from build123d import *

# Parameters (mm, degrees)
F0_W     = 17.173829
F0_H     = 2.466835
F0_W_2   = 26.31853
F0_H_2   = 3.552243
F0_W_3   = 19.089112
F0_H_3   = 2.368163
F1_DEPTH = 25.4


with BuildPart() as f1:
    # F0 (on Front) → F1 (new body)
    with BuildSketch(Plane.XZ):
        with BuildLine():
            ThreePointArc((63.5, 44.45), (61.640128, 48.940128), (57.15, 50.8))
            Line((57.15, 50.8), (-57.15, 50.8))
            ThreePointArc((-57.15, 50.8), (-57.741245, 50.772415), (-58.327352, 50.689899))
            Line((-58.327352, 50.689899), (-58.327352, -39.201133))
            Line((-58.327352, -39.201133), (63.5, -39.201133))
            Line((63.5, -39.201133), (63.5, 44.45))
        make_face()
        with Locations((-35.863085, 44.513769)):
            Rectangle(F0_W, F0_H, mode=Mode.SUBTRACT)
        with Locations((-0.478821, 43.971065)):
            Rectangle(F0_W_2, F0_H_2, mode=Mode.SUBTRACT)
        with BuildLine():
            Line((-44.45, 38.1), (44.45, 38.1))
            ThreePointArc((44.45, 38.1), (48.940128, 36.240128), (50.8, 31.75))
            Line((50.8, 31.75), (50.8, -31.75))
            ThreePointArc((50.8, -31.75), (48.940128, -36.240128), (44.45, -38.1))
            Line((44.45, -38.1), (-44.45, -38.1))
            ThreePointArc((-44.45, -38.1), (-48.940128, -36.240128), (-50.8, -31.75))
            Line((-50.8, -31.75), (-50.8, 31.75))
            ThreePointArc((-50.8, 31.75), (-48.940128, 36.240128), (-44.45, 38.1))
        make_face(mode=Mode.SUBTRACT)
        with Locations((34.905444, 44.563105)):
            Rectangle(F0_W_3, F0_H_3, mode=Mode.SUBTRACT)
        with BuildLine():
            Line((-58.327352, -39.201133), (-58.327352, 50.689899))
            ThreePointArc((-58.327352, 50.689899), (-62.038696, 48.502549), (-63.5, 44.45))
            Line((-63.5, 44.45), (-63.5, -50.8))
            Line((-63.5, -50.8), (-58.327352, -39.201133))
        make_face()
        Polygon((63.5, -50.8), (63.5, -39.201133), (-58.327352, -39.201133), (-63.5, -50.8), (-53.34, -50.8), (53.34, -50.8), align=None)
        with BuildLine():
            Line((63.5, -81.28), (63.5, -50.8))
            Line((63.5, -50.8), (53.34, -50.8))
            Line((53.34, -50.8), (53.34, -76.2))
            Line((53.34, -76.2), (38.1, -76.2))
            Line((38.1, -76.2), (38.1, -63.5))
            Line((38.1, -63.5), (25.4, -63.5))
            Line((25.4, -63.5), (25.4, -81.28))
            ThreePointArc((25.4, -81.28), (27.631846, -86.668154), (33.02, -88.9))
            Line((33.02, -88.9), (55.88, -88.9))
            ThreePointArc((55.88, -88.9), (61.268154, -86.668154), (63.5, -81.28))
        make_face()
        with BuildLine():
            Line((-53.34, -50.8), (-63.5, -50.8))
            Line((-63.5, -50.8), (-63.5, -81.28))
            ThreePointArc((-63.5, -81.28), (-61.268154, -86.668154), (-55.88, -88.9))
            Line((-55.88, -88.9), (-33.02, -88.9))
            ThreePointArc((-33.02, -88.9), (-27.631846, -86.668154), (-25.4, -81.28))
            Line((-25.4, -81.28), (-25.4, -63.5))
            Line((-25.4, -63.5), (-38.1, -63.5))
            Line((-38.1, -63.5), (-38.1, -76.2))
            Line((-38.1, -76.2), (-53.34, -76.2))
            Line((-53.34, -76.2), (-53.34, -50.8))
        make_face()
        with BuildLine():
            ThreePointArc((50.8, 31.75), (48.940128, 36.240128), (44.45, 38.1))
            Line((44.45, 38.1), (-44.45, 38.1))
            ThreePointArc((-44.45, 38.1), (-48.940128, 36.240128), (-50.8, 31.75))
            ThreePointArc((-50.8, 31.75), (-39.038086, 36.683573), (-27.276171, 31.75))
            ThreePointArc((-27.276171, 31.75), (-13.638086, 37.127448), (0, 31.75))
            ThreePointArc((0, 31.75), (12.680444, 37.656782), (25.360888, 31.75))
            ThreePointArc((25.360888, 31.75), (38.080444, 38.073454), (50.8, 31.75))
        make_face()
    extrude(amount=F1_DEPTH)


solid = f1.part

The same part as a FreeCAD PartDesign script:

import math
import FreeCAD as App
import Part
import Sketcher

V = App.Vector
Q = App.Units.Quantity


def add_polygon(sketch, points):
    """Adds a closed chain of lines whose ends are joined by coincident constraints."""
    first, n = sketch.GeometryCount, len(points)
    for a, b in zip(points, points[1:] + points[:1]):
        sketch.addGeometry(Part.LineSegment(App.Vector(*a, 0), App.Vector(*b, 0)), False)
    for i in range(n):
        sketch.addConstraint(Sketcher.Constraint("Coincident", first + i, 2, first + (i + 1) % n, 1))

doc = App.newDocument("Part")
body = doc.addObject("PartDesign::Body", "Body")

# Sketch on XZ plane
sketch1 = body.newObject("Sketcher::SketchObject", "Sketch")
sketch1.AttachmentSupport = (doc.getObject("XZ_Plane"), [""])
sketch1.MapMode = "FlatFace"
sketch1.addGeometry(Part.ArcOfCircle(Part.Circle(V(57.15, 44.45, 0), V(0, 0, 1), 6.35), math.radians(0.000002), math.radians(89.999998)), False)  # 0
sketch1.addGeometry(Part.LineSegment(V(57.15, 50.8, 0), V(-57.15, 50.8, 0)), False)  # 1
sketch1.addGeometry(Part.ArcOfCircle(Part.Circle(V(-57.150005, 44.450062, 0), V(0, 0, 1), 6.349938), math.radians(89.999958), math.radians(100.685087)), False)  # 2
sketch1.addGeometry(Part.ArcOfCircle(Part.Circle(V(-57.150001, 44.450001, 0), V(0, 0, 1), 6.349999), math.radians(100.685016), math.radians(180.000005)), False)  # 3
sketch1.addGeometry(Part.LineSegment(V(-63.5, 44.45, 0), V(-63.5, -81.28, 0)), False)  # 4
sketch1.addGeometry(Part.ArcOfCircle(Part.Circle(V(-55.880001, -81.280001, 0), V(0, 0, 1), 7.619999), math.radians(179.999992), math.radians(270.000008)), False)  # 5
sketch1.addGeometry(Part.LineSegment(V(-55.88, -88.9, 0), V(-33.02, -88.9, 0)), False)  # 6
sketch1.addGeometry(Part.ArcOfCircle(Part.Circle(V(-33.019999, -81.280001, 0), V(0, 0, 1), 7.619999), math.radians(-90.000008), math.radians(0.000008)), False)  # 7
sketch1.addGeometry(Part.LineSegment(V(-25.4, -81.28, 0), V(-25.4, -63.5, 0)), False)  # 8
sketch1.addGeometry(Part.LineSegment(V(-25.4, -63.5, 0), V(-38.1, -63.5, 0)), False)  # 9
sketch1.addGeometry(Part.LineSegment(V(-38.1, -63.5, 0), V(-38.1, -76.2, 0)), False)  # 10
sketch1.addGeometry(Part.LineSegment(V(-38.1, -76.2, 0), V(-53.34, -76.2, 0)), False)  # 11
sketch1.addGeometry(Part.LineSegment(V(-53.34, -76.2, 0), V(-53.34, -50.8, 0)), False)  # 12
sketch1.addGeometry(Part.LineSegment(V(-53.34, -50.8, 0), V(53.34, -50.8, 0)), False)  # 13
sketch1.addGeometry(Part.LineSegment(V(53.34, -50.8, 0), V(53.34, -76.2, 0)), False)  # 14
sketch1.addGeometry(Part.LineSegment(V(53.34, -76.2, 0), V(38.1, -76.2, 0)), False)  # 15
sketch1.addGeometry(Part.LineSegment(V(38.1, -76.2, 0), V(38.1, -63.5, 0)), False)  # 16
sketch1.addGeometry(Part.LineSegment(V(38.1, -63.5, 0), V(25.4, -63.5, 0)), False)  # 17
sketch1.addGeometry(Part.LineSegment(V(25.4, -63.5, 0), V(25.4, -81.28, 0)), False)  # 18
sketch1.addGeometry(Part.ArcOfCircle(Part.Circle(V(33.019999, -81.280001, 0), V(0, 0, 1), 7.619999), math.radians(179.999992), math.radians(270.000008)), False)  # 19
sketch1.addGeometry(Part.LineSegment(V(33.02, -88.9, 0), V(55.88, -88.9, 0)), False)  # 20
sketch1.addGeometry(Part.ArcOfCircle(Part.Circle(V(55.880001, -81.280001, 0), V(0, 0, 1), 7.619999), math.radians(-90.000008), math.radians(0.000008)), False)  # 21
sketch1.addGeometry(Part.LineSegment(V(63.5, -81.28, 0), V(63.5, 44.45, 0)), False)  # 22
sketch1.addGeometry(Part.LineSegment(V(50.8, 31.75, 0), V(50.8, -31.75, 0)), False)  # 23
sketch1.addGeometry(Part.ArcOfCircle(Part.Circle(V(44.45, -31.75, 0), V(0, 0, 1), 6.35), math.radians(-89.999998), math.radians(-0.000002)), False)  # 24
sketch1.addGeometry(Part.LineSegment(V(44.45, -38.1, 0), V(-44.45, -38.1, 0)), False)  # 25
sketch1.addGeometry(Part.ArcOfCircle(Part.Circle(V(-44.45, -31.75, 0), V(0, 0, 1), 6.35), math.radians(-179.999998), math.radians(-90.000002)), False)  # 26
sketch1.addGeometry(Part.LineSegment(V(-50.8, -31.75, 0), V(-50.8, 31.75, 0)), False)  # 27
sketch1.addGeometry(Part.ArcOfCircle(Part.Circle(V(-39.038086, 20.196255, 0), V(0, 0, 1), 16.487318), math.radians(44.488459), math.radians(135.511541)), False)  # 28
sketch1.addGeometry(Part.ArcOfCircle(Part.Circle(V(-13.638086, 17.144519, 0), V(0, 0, 1), 19.982929), math.radians(46.961722), math.radians(133.038278)), False)  # 29
sketch1.addGeometry(Part.ArcOfCircle(Part.Circle(V(12.680444, 21.092455, 0), V(0, 0, 1), 16.564327), math.radians(40.046076), math.radians(139.953924)), False)  # 30
sketch1.addGeometry(Part.ArcOfCircle(Part.Circle(V(38.080444, 22.119106, 0), V(0, 0, 1), 15.954348), math.radians(37.131993), math.radians(142.868007)), False)  # 31
add_polygon(sketch1, [(-27.27617, 43.280352), (-44.449999, 43.280352), (-44.449999, 45.747186), (-27.27617, 45.747186)])  # lines 32-35
add_polygon(sketch1, [(12.680444, 42.194944), (-13.638086, 42.194944), (-13.638086, 45.747186), (12.680444, 45.747186)])  # lines 36-39
add_polygon(sketch1, [(44.45, 43.379024), (25.360888, 43.379024), (25.360888, 45.747186), (44.45, 45.747186)])  # lines 40-43
sketch1.addConstraint(Sketcher.Constraint("Coincident", 0, 2, 1, 1))
sketch1.addConstraint(Sketcher.Constraint("Coincident", 1, 2, 2, 1))
sketch1.addConstraint(Sketcher.Constraint("Coincident", 2, 2, 3, 1))
sketch1.addConstraint(Sketcher.Constraint("Coincident", 3, 2, 4, 1))
sketch1.addConstraint(Sketcher.Constraint("Coincident", 4, 2, 5, 1))
sketch1.addConstraint(Sketcher.Constraint("Coincident", 5, 2, 6, 1))
sketch1.addConstraint(Sketcher.Constraint("Coincident", 6, 2, 7, 1))
sketch1.addConstraint(Sketcher.Constraint("Coincident", 7, 2, 8, 1))
sketch1.addConstraint(Sketcher.Constraint("Coincident", 8, 2, 9, 1))
sketch1.addConstraint(Sketcher.Constraint("Coincident", 9, 2, 10, 1))
sketch1.addConstraint(Sketcher.Constraint("Coincident", 10, 2, 11, 1))
sketch1.addConstraint(Sketcher.Constraint("Coincident", 11, 2, 12, 1))
sketch1.addConstraint(Sketcher.Constraint("Coincident", 12, 2, 13, 1))
sketch1.addConstraint(Sketcher.Constraint("Coincident", 13, 2, 14, 1))
sketch1.addConstraint(Sketcher.Constraint("Coincident", 14, 2, 15, 1))
sketch1.addConstraint(Sketcher.Constraint("Coincident", 15, 2, 16, 1))
sketch1.addConstraint(Sketcher.Constraint("Coincident", 16, 2, 17, 1))
sketch1.addConstraint(Sketcher.Constraint("Coincident", 17, 2, 18, 1))
sketch1.addConstraint(Sketcher.Constraint("Coincident", 18, 2, 19, 1))
sketch1.addConstraint(Sketcher.Constraint("Coincident", 19, 2, 20, 1))
sketch1.addConstraint(Sketcher.Constraint("Coincident", 20, 2, 21, 1))
sketch1.addConstraint(Sketcher.Constraint("Coincident", 21, 2, 22, 1))
sketch1.addConstraint(Sketcher.Constraint("Coincident", 22, 2, 0, 1))
sketch1.addConstraint(Sketcher.Constraint("Coincident", 23, 2, 24, 2))
sketch1.addConstraint(Sketcher.Constraint("Coincident", 24, 1, 25, 1))
sketch1.addConstraint(Sketcher.Constraint("Coincident", 25, 2, 26, 2))
sketch1.addConstraint(Sketcher.Constraint("Coincident", 26, 1, 27, 1))
sketch1.addConstraint(Sketcher.Constraint("Coincident", 27, 2, 28, 2))
sketch1.addConstraint(Sketcher.Constraint("Coincident", 28, 1, 29, 2))
sketch1.addConstraint(Sketcher.Constraint("Coincident", 29, 1, 30, 2))
sketch1.addConstraint(Sketcher.Constraint("Coincident", 30, 1, 31, 2))
sketch1.addConstraint(Sketcher.Constraint("Coincident", 31, 1, 23, 1))
sketch1.addConstraint(Sketcher.Constraint("Horizontal", 1))
sketch1.addConstraint(Sketcher.Constraint("Vertical", 4))
sketch1.addConstraint(Sketcher.Constraint("Horizontal", 6))
sketch1.addConstraint(Sketcher.Constraint("Vertical", 8))
sketch1.addConstraint(Sketcher.Constraint("Horizontal", 9))
sketch1.addConstraint(Sketcher.Constraint("Vertical", 10))
sketch1.addConstraint(Sketcher.Constraint("Horizontal", 11))
sketch1.addConstraint(Sketcher.Constraint("Vertical", 12))
sketch1.addConstraint(Sketcher.Constraint("Horizontal", 13))
sketch1.addConstraint(Sketcher.Constraint("Vertical", 14))
sketch1.addConstraint(Sketcher.Constraint("Horizontal", 15))
sketch1.addConstraint(Sketcher.Constraint("Vertical", 16))
sketch1.addConstraint(Sketcher.Constraint("Horizontal", 17))
sketch1.addConstraint(Sketcher.Constraint("Vertical", 18))
sketch1.addConstraint(Sketcher.Constraint("Horizontal", 20))
sketch1.addConstraint(Sketcher.Constraint("Vertical", 22))
sketch1.addConstraint(Sketcher.Constraint("Vertical", 23))
sketch1.addConstraint(Sketcher.Constraint("Horizontal", 25))
sketch1.addConstraint(Sketcher.Constraint("Vertical", 27))
sketch1.addConstraint(Sketcher.Constraint("Horizontal", 32))
sketch1.addConstraint(Sketcher.Constraint("Vertical", 33))
sketch1.addConstraint(Sketcher.Constraint("Horizontal", 34))
sketch1.addConstraint(Sketcher.Constraint("Vertical", 35))
sketch1.addConstraint(Sketcher.Constraint("Horizontal", 36))
sketch1.addConstraint(Sketcher.Constraint("Vertical", 37))
sketch1.addConstraint(Sketcher.Constraint("Horizontal", 38))
sketch1.addConstraint(Sketcher.Constraint("Vertical", 39))
sketch1.addConstraint(Sketcher.Constraint("Horizontal", 40))
sketch1.addConstraint(Sketcher.Constraint("Vertical", 41))
sketch1.addConstraint(Sketcher.Constraint("Horizontal", 42))
sketch1.addConstraint(Sketcher.Constraint("Vertical", 43))
sketch1.addConstraint(Sketcher.Constraint("PointOnObject", 29, 1, -2))
sketch1.addConstraint(Sketcher.Constraint("Radius", 5, Q("0.3 in")))
sketch1.addConstraint(Sketcher.Constraint("Radius", 7, Q("0.3 in")))
sketch1.addConstraint(Sketcher.Constraint("Radius", 19, Q("0.3 in")))
sketch1.addConstraint(Sketcher.Constraint("Radius", 21, Q("0.3 in")))
sketch1.addConstraint(Sketcher.Constraint("DistanceY", 12, 1, 12, 2, Q("1 in")))
sketch1.addConstraint(Sketcher.Constraint("DistanceY", 14, 2, 14, 1, Q("1 in")))
sketch1.addConstraint(Sketcher.Constraint("Radius", 0, Q("0.25 in")))
sketch1.addConstraint(Sketcher.Constraint("Radius", 3, Q("0.25 in")))
sketch1.addConstraint(Sketcher.Constraint("Radius", 24, Q("0.25 in")))
sketch1.addConstraint(Sketcher.Constraint("Radius", 26, Q("0.25 in")))
sketch1.addConstraint(Sketcher.Constraint("DistanceX", 1, 2, 1, 1, Q("4.5 in")))
sketch1.addConstraint(Sketcher.Constraint("DistanceX", 6, 1, 6, 2, Q("0.9 in")))
sketch1.addConstraint(Sketcher.Constraint("DistanceX", 9, 2, 9, 1, Q("0.5 in")))
sketch1.addConstraint(Sketcher.Constraint("DistanceX", 11, 2, 11, 1, Q("0.6 in")))
sketch1.addConstraint(Sketcher.Constraint("DistanceX", 13, 1, 13, 2, Q("4.2 in")))
sketch1.addConstraint(Sketcher.Constraint("DistanceX", 15, 2, 15, 1, Q("0.6 in")))
sketch1.addConstraint(Sketcher.Constraint("DistanceX", 17, 2, 17, 1, Q("0.5 in")))
sketch1.addConstraint(Sketcher.Constraint("DistanceX", 20, 1, 20, 2, Q("0.9 in")))
sketch1.addConstraint(Sketcher.Constraint("DistanceX", 25, 2, 25, 1, Q("3.5 in")))
sketch1.addConstraint(Sketcher.Constraint("DistanceY", 8, 1, 8, 2, Q("0.7 in")))
sketch1.addConstraint(Sketcher.Constraint("DistanceY", 10, 2, 10, 1, Q("0.5 in")))
sketch1.addConstraint(Sketcher.Constraint("DistanceY", 16, 1, 16, 2, Q("0.5 in")))
sketch1.addConstraint(Sketcher.Constraint("DistanceY", 18, 2, 18, 1, Q("0.7 in")))
sketch1.addConstraint(Sketcher.Constraint("DistanceY", 23, 2, 23, 1, Q("2.5 in")))
sketch1.addConstraint(Sketcher.Constraint("DistanceY", 27, 1, 27, 2, Q("2.5 in")))
sketch1.addConstraint(Sketcher.Constraint("DistanceY", -1, 1, 0, 2, Q("2 in")))
sketch1.addConstraint(Sketcher.Constraint("DistanceX", 7, 2, -1, 1, Q("1 in")))
sketch1.addConstraint(Sketcher.Constraint("DistanceY", 10, 2, -1, 1, Q("3 in")))
sketch1.addConstraint(Sketcher.Constraint("DistanceX", -1, 1, 23, 2, Q("2 in")))
sketch1.addConstraint(Sketcher.Constraint("DistanceX", 26, 1, -1, 1, Q("2 in")))
sketch1.addConstraint(Sketcher.Constraint("DistanceY", 24, 3, 0, 3, Q("3 in")))
sketch1.addConstraint(Sketcher.Constraint("DistanceY", 26, 3, 3, 3, Q("3 in")))
sketch1.addConstraint(Sketcher.Constraint("DistanceX", 28, 3, 29, 3, Q("1 in")))
sketch1.addConstraint(Sketcher.Constraint("DistanceX", 30, 3, 31, 3, Q("1 in")))
sketch1.addConstraint(Sketcher.Constraint("DistanceY", 6, 2, 8, 2, Q("1 in")))
sketch1.addConstraint(Sketcher.Constraint("DistanceX", 15, 2, 21, 2, Q("1 in")))
sketch1.addConstraint(Sketcher.Constraint("DistanceY", 24, 3, 22, 2, Q("3 in")))
sketch1.addConstraint(Sketcher.Constraint("DistanceY", 4, 2, 4, 1, Q("4.95 in")))
sketch1.addConstraint(Sketcher.Constraint("DistanceY", 22, 1, 22, 2, Q("4.95 in")))
sketch1.addConstraint(Sketcher.Constraint("DistanceX", 5, 3, -1, 1, Q("2.2 in")))
sketch1.addConstraint(Sketcher.Constraint("DistanceY", 19, 3, -1, 1, Q("3.2 in")))
sketch1.addConstraint(Sketcher.Constraint("DistanceY", 4, 2, -1, 1, Q("3.2 in")))
sketch1.addConstraint(Sketcher.Constraint("DistanceX", 5, 2, -1, 1, Q("2.2 in")))
sketch1.addConstraint(Sketcher.Constraint("DistanceX", -1, 1, 19, 2, Q("1.3 in")))
sketch1.addConstraint(Sketcher.Constraint("DistanceX", 2, 3, 0, 3, Q("4.5000002 in")))
sketch1.addConstraint(Sketcher.Constraint("DistanceX", 24, 3, 0, 2, Q("0.5 in")))
sketch1.addConstraint(Sketcher.Constraint("DistanceY", 27, 2, 3, 3, Q("0.5 in")))
sketch1.addConstraint(Sketcher.Constraint("DistanceY", 28, 1, 3, 3, Q("0.5 in")))
sketch1.addConstraint(Sketcher.Constraint("DistanceY", 30, 1, 0, 3, Q("0.5 in")))
sketch1.addConstraint(Sketcher.Constraint("DistanceX", 3, 3, 32, 2, Q("0.5000001 in")))
sketch1.addConstraint(Sketcher.Constraint("DistanceX", 42, 2, 0, 3, Q("0.5 in")))
sketch1.addConstraint(Sketcher.Constraint("DistanceX", -1, 1, 24, 1, Q("1.75 in")))
sketch1.addConstraint(Sketcher.Constraint("Radius", 28, Q("16.487318 mm")))
sketch1.addConstraint(Sketcher.Constraint("Radius", 29, Q("19.982929 mm")))
sketch1.addConstraint(Sketcher.Constraint("Radius", 31, Q("15.954348 mm")))
sketch1.addConstraint(Sketcher.Constraint("Radius", 30, Q("16.564327 mm")))
sketch1.addConstraint(Sketcher.Constraint("DistanceX", 32, 2, 32, 1, Q("17.173829 mm")))
sketch1.addConstraint(Sketcher.Constraint("DistanceX", 36, 2, 36, 1, Q("26.31853 mm")))
sketch1.addConstraint(Sketcher.Constraint("DistanceY", -1, 1, 2, 2, Q("50.689899 mm")))
sketch1.addConstraint(Sketcher.Constraint("DistanceY", 28, 3, 30, 3, Q("0.8962 mm")))
sketch1.addConstraint(Sketcher.Constraint("DistanceX", 40, 2, 40, 1, Q("19.089112 mm")))
sketch1.addConstraint(Sketcher.Constraint("DistanceY", 33, 1, 33, 2, Q("2.466835 mm")))
sketch1.addConstraint(Sketcher.Constraint("DistanceY", 37, 1, 37, 2, Q("3.552243 mm")))
sketch1.addConstraint(Sketcher.Constraint("DistanceY", 41, 1, 41, 2, Q("2.368163 mm")))
sketch1.addConstraint(Sketcher.Constraint("DistanceY", -1, 1, 29, 3, Q("17.144519 mm")))
sketch1.addConstraint(Sketcher.Constraint("DistanceY", -1, 1, 32, 2, Q("43.280352 mm")))
sketch1.addConstraint(Sketcher.Constraint("DistanceY", 36, 2, 35, 2, Q("1.085408 mm")))
sketch1.addConstraint(Sketcher.Constraint("DistanceY", 39, 2, 40, 2, Q("1.18408 mm")))
sketch1.addConstraint(Sketcher.Constraint("DistanceX", 36, 2, -1, 1, Q("13.638086 mm")))
pad1 = body.newObject("PartDesign::Pad", "Pad")
pad1.Profile = sketch1
pad1.Length = Q("1 in")

doc.recompute()
